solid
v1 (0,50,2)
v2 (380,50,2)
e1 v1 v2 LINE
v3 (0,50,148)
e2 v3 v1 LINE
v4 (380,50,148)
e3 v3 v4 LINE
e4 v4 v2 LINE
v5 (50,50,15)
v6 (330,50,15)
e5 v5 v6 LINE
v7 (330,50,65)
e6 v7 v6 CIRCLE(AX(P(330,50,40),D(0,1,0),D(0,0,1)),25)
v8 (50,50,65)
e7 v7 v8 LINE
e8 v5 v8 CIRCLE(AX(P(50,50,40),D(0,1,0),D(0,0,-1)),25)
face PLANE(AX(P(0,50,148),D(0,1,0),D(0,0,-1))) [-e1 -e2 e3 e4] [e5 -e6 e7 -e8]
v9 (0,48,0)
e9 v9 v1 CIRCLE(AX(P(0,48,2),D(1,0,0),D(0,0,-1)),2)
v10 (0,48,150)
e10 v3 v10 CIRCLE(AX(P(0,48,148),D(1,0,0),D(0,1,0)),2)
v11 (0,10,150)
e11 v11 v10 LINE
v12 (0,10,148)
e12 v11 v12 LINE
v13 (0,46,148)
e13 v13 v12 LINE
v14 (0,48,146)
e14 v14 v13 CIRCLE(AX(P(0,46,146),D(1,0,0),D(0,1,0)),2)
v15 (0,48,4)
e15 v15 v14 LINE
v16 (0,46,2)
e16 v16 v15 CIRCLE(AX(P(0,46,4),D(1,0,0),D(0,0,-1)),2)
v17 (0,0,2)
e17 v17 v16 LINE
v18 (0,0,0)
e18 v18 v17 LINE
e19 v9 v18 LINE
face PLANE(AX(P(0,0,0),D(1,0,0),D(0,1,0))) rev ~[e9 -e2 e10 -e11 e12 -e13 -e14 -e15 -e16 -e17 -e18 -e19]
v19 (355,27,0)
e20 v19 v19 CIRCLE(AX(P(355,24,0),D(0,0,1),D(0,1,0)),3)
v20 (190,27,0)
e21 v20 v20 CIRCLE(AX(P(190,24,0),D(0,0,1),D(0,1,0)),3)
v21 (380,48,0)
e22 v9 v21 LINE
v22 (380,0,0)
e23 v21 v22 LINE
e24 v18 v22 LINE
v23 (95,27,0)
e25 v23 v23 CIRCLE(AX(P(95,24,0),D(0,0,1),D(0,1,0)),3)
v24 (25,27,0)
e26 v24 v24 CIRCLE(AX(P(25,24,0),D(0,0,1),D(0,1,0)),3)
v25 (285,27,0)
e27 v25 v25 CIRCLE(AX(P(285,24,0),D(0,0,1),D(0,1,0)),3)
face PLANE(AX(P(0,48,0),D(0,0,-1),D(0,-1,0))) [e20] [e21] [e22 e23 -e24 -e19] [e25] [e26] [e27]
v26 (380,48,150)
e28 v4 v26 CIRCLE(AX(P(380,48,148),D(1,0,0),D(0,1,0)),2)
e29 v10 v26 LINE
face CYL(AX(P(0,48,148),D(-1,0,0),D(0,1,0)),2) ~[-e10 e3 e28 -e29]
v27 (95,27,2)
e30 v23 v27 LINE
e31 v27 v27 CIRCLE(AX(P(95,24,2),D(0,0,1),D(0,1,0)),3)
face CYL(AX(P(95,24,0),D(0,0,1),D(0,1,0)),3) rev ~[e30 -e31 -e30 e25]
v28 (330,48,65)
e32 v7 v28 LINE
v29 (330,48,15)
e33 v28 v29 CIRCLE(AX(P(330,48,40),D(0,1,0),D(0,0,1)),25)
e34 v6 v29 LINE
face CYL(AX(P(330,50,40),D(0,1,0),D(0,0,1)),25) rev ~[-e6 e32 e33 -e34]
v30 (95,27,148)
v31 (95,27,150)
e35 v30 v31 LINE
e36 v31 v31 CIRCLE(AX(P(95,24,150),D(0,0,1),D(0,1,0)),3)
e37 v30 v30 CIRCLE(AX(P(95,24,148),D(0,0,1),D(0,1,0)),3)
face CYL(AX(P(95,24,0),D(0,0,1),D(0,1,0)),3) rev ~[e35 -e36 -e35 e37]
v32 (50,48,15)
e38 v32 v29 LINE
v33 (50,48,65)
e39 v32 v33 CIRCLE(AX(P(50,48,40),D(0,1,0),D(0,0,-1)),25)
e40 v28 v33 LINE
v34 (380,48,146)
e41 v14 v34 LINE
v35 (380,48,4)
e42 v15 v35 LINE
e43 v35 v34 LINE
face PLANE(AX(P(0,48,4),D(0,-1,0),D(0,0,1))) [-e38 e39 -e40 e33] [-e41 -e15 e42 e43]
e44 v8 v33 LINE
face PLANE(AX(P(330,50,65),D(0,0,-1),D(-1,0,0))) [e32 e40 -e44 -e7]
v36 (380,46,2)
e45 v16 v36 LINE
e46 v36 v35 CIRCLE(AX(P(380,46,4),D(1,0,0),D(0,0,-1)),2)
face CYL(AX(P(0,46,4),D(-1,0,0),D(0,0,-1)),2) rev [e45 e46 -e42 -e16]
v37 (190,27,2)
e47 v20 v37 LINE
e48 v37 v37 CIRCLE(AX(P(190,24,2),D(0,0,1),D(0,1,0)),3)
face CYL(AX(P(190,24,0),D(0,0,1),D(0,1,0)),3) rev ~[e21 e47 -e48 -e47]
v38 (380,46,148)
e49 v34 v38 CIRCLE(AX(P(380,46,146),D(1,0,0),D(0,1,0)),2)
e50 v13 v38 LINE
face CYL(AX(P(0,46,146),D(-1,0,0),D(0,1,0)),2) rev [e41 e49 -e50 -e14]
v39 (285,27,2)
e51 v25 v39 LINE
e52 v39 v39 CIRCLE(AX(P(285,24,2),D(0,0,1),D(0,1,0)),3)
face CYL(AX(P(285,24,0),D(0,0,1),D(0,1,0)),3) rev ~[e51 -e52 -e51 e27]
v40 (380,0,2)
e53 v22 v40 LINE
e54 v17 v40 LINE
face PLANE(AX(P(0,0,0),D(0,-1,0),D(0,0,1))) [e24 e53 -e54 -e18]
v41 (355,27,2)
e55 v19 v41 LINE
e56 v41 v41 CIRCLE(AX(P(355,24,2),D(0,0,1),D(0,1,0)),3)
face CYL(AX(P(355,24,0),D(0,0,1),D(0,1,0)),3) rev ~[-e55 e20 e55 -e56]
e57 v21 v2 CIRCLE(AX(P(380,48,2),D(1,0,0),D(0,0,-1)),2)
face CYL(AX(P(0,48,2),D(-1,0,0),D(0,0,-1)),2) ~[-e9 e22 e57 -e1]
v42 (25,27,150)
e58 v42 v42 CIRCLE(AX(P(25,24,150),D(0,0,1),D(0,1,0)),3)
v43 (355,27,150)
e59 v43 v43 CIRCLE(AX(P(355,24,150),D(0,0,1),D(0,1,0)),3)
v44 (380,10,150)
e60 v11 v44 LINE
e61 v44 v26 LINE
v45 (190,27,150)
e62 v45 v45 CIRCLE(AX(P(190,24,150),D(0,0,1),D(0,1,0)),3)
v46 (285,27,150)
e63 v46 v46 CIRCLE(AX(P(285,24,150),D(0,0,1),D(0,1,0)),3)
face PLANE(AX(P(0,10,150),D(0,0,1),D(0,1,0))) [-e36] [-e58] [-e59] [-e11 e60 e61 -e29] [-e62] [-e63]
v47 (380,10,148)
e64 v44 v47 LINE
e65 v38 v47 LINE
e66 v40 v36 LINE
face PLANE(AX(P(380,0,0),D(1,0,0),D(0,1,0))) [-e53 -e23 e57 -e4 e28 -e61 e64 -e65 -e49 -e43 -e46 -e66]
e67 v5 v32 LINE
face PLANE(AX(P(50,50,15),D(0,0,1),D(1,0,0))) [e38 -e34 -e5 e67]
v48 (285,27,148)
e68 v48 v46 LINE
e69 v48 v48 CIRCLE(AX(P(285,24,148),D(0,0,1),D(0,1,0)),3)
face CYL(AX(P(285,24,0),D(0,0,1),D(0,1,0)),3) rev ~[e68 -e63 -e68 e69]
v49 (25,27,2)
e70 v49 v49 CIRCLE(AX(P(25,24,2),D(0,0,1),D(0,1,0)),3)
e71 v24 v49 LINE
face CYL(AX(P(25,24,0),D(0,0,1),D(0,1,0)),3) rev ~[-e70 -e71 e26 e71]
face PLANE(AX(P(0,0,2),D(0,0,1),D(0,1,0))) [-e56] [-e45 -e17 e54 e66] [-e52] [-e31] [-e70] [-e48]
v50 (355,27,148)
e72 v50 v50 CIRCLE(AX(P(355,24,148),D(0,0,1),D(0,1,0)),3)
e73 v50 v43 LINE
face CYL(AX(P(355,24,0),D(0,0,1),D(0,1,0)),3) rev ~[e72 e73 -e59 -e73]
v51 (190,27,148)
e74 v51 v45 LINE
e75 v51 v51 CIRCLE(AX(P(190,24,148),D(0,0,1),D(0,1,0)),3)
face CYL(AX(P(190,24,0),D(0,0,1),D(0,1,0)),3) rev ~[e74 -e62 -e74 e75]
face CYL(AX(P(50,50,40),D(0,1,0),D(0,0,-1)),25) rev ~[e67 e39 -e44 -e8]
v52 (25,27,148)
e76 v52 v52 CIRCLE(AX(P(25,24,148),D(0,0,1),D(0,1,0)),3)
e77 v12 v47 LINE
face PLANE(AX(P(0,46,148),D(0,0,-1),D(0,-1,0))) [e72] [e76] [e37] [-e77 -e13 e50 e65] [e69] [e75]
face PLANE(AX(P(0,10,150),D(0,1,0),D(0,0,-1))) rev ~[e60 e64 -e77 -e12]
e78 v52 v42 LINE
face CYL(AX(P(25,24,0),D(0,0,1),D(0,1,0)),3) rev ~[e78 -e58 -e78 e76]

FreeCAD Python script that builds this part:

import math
import FreeCAD as App
import Part
import Sketcher
Q = App.Units.Quantity

doc = App.newDocument("Part")
body = doc.addObject("PartDesign::Body", "Body")

# Sketch on YZ plane
sketch1 = body.newObject("Sketcher::SketchObject", "Sketch")
sketch1.AttachmentSupport = (doc.getObject("YZ_Plane"), [""])
sketch1.MapMode = "FlatFace"
sketch1.addGeometry([
    Part.LineSegment(App.Vector(48, 150, 0), App.Vector(10, 150, 0)),  # 0
    Part.LineSegment(App.Vector(10, 150, 0), App.Vector(10, 148, 0)),  # 1
    Part.LineSegment(App.Vector(10, 148, 0), App.Vector(46, 148, 0)),  # 2
    Part.ArcOfCircle(Part.Circle(App.Vector(46, 146, 0), App.Vector(0, 0, 1), 2), math.radians(0), math.radians(90)),  # 3
    Part.LineSegment(App.Vector(48, 146, 0), App.Vector(48, 4, 0)),  # 4
    Part.ArcOfCircle(Part.Circle(App.Vector(46, 4, 0), App.Vector(0, 0, 1), 2), math.radians(-90), math.radians(0)),  # 5
    Part.LineSegment(App.Vector(46, 2, 0), App.Vector(0, 2, 0)),  # 6
    Part.LineSegment(App.Vector(0, 2, 0), App.Vector(0, 0, 0)),  # 7
    Part.LineSegment(App.Vector(0, 0, 0), App.Vector(48, 0, 0)),  # 8
    Part.ArcOfCircle(Part.Circle(App.Vector(48, 2, 0), App.Vector(0, 0, 1), 2), math.radians(-90), math.radians(0)),  # 9
    Part.LineSegment(App.Vector(50, 2, 0), App.Vector(50, 148, 0)),  # 10
    Part.ArcOfCircle(Part.Circle(App.Vector(48, 148, 0), App.Vector(0, 0, 1), 2), math.radians(0), math.radians(90)),  # 11
], False)
sketch1.addConstraint([
    Sketcher.Constraint("Coincident", 0, 2, 1, 1),
    Sketcher.Constraint("Coincident", 1, 2, 2, 1),
    Sketcher.Constraint("Tangent", 2, 2, 3, 2),
    Sketcher.Constraint("Tangent", 3, 1, 4, 1),
    Sketcher.Constraint("Tangent", 4, 2, 5, 2),
    Sketcher.Constraint("Tangent", 5, 1, 6, 1),
    Sketcher.Constraint("Coincident", 6, 2, 7, 1),
    Sketcher.Constraint("Coincident", 7, 2, 8, 1),
    Sketcher.Constraint("Tangent", 8, 2, 9, 1),
    Sketcher.Constraint("Tangent", 9, 2, 10, 1),
    Sketcher.Constraint("Tangent", 10, 2, 11, 1),
    Sketcher.Constraint("Tangent", 11, 2, 0, 1),
    Sketcher.Constraint("Horizontal", 0),
    Sketcher.Constraint("Vertical", 1),
    Sketcher.Constraint("Horizontal", 2),
    Sketcher.Constraint("Vertical", 4),
    Sketcher.Constraint("Horizontal", 6),
    Sketcher.Constraint("Vertical", 7),
    Sketcher.Constraint("Horizontal", 8),
    Sketcher.Constraint("Vertical", 10),
    Sketcher.Constraint("Coincident", 7, 2, -1, 1),
    Sketcher.Constraint("Equal", 3, 5),
    Sketcher.Constraint("Equal", 5, 9),
    Sketcher.Constraint("Equal", 9, 11),
    Sketcher.Constraint("Horizontal", 11, 3, 1, 2),
    Sketcher.Constraint("Horizontal", 9, 3, 5, 1),
    Sketcher.Constraint("Vertical", 11, 3, 3, 1),
    Sketcher.Constraint("Radius", 3, Q("2 mm")),
    Sketcher.Constraint("DistanceY", -1, 1, 0, 2, Q("150 mm")),
    Sketcher.Constraint("DistanceX", -1, 1, 9, 2, Q("50 mm")),
    Sketcher.Constraint("DistanceX", 1, 2, 10, 2, Q("40 mm")),
])
pad1 = body.newObject("PartDesign::Pad", "Pad")
pad1.Profile = sketch1
pad1.Length = 380

# Sketch on XZ plane
sketch2 = body.newObject("Sketcher::SketchObject", "Sketch001")
sketch2.AttachmentSupport = (doc.getObject("XZ_Plane"), [""])
sketch2.MapMode = "FlatFace"
sketch2.AttachmentOffset = App.Placement(App.Vector(0, 0, -50), App.Rotation())
sketch2.addGeometry([
    Part.LineSegment(App.Vector(50, 65, 0), App.Vector(330, 65, 0)),
    Part.ArcOfCircle(Part.Circle(App.Vector(330, 40, 0), App.Vector(0, 0, 1), 25), math.radians(-90), math.radians(90)),
    Part.LineSegment(App.Vector(330, 15, 0), App.Vector(50, 15, 0)),
    Part.ArcOfCircle(Part.Circle(App.Vector(50, 40, 0), App.Vector(0, 0, 1), 25), math.radians(90), math.radians(270)),
], False)
sketch2.addConstraint([
    Sketcher.Constraint("Tangent", 0, 2, 1, 2),
    Sketcher.Constraint("Tangent", 1, 1, 2, 1),
    Sketcher.Constraint("Tangent", 2, 2, 3, 2),
    Sketcher.Constraint("Tangent", 3, 1, 0, 1),
    Sketcher.Constraint("Horizontal", 0),
    Sketcher.Constraint("Horizontal", 2),
    Sketcher.Constraint("Radius", 1, Q("25 mm")),
    Sketcher.Constraint("DistanceX", 0, 1, 0, 2, Q("280 mm")),
    Sketcher.Constraint("DistanceY", -1, 1, 1, 3, Q("40 mm")),
    Sketcher.Constraint("DistanceX", -1, 1, 3, 3, Q("50 mm")),
])
pocket1 = body.newObject("PartDesign::Pocket", "Pocket")
pocket1.Profile = sketch2
pocket1.Length = 2
pocket1.Reversed = True

# Sketch on XY plane
sketch3 = body.newObject("Sketcher::SketchObject", "Sketch002")
sketch3.AttachmentSupport = (doc.getObject("XY_Plane"), [""])
sketch3.MapMode = "FlatFace"
sketch3.addGeometry([
    Part.Circle(App.Vector(355, 24, 0), App.Vector(0, 0, 1), 3),  # 0
    Part.Circle(App.Vector(285, 24, 0), App.Vector(0, 0, 1), 3),  # 1
    Part.Circle(App.Vector(190, 24, 0), App.Vector(0, 0, 1), 3),  # 2
    Part.Circle(App.Vector(25, 24, 0), App.Vector(0, 0, 1), 3),  # 3
    Part.Circle(App.Vector(95, 24, 0), App.Vector(0, 0, 1), 3),  # 4
], False)
sketch3.addConstraint([
    Sketcher.Constraint("Equal", 0, 1),
    Sketcher.Constraint("Equal", 1, 2),
    Sketcher.Constraint("Equal", 2, 3),
    Sketcher.Constraint("Equal", 3, 4),
    Sketcher.Constraint("Horizontal", 0, 3, 1, 3),
    Sketcher.Constraint("Horizontal", 1, 3, 2, 3),
    Sketcher.Constraint("Horizontal", 2, 3, 3, 3),
    Sketcher.Constraint("Horizontal", 3, 3, 4, 3),
    Sketcher.Constraint("Diameter", 0, Q("6 mm")),
    Sketcher.Constraint("DistanceX", -1, 1, 0, 3, Q("355 mm")),
    Sketcher.Constraint("DistanceY", -1, 1, 0, 3, Q("24 mm")),
    Sketcher.Constraint("DistanceX", -1, 1, 1, 3, Q("285 mm")),
    Sketcher.Constraint("DistanceX", -1, 1, 2, 3, Q("190 mm")),
    Sketcher.Constraint("DistanceX", -1, 1, 3, 3, Q("25 mm")),
    Sketcher.Constraint("DistanceX", -1, 1, 4, 3, Q("95 mm")),
])
doc.recompute()
hole = body.newObject("PartDesign::Hole", "Hole")
hole.Profile = sketch3
hole.ThreadType = "None"
hole.Diameter = 6
hole.DepthType = "ThroughAll"
hole.Reversed = True

doc.recompute()
